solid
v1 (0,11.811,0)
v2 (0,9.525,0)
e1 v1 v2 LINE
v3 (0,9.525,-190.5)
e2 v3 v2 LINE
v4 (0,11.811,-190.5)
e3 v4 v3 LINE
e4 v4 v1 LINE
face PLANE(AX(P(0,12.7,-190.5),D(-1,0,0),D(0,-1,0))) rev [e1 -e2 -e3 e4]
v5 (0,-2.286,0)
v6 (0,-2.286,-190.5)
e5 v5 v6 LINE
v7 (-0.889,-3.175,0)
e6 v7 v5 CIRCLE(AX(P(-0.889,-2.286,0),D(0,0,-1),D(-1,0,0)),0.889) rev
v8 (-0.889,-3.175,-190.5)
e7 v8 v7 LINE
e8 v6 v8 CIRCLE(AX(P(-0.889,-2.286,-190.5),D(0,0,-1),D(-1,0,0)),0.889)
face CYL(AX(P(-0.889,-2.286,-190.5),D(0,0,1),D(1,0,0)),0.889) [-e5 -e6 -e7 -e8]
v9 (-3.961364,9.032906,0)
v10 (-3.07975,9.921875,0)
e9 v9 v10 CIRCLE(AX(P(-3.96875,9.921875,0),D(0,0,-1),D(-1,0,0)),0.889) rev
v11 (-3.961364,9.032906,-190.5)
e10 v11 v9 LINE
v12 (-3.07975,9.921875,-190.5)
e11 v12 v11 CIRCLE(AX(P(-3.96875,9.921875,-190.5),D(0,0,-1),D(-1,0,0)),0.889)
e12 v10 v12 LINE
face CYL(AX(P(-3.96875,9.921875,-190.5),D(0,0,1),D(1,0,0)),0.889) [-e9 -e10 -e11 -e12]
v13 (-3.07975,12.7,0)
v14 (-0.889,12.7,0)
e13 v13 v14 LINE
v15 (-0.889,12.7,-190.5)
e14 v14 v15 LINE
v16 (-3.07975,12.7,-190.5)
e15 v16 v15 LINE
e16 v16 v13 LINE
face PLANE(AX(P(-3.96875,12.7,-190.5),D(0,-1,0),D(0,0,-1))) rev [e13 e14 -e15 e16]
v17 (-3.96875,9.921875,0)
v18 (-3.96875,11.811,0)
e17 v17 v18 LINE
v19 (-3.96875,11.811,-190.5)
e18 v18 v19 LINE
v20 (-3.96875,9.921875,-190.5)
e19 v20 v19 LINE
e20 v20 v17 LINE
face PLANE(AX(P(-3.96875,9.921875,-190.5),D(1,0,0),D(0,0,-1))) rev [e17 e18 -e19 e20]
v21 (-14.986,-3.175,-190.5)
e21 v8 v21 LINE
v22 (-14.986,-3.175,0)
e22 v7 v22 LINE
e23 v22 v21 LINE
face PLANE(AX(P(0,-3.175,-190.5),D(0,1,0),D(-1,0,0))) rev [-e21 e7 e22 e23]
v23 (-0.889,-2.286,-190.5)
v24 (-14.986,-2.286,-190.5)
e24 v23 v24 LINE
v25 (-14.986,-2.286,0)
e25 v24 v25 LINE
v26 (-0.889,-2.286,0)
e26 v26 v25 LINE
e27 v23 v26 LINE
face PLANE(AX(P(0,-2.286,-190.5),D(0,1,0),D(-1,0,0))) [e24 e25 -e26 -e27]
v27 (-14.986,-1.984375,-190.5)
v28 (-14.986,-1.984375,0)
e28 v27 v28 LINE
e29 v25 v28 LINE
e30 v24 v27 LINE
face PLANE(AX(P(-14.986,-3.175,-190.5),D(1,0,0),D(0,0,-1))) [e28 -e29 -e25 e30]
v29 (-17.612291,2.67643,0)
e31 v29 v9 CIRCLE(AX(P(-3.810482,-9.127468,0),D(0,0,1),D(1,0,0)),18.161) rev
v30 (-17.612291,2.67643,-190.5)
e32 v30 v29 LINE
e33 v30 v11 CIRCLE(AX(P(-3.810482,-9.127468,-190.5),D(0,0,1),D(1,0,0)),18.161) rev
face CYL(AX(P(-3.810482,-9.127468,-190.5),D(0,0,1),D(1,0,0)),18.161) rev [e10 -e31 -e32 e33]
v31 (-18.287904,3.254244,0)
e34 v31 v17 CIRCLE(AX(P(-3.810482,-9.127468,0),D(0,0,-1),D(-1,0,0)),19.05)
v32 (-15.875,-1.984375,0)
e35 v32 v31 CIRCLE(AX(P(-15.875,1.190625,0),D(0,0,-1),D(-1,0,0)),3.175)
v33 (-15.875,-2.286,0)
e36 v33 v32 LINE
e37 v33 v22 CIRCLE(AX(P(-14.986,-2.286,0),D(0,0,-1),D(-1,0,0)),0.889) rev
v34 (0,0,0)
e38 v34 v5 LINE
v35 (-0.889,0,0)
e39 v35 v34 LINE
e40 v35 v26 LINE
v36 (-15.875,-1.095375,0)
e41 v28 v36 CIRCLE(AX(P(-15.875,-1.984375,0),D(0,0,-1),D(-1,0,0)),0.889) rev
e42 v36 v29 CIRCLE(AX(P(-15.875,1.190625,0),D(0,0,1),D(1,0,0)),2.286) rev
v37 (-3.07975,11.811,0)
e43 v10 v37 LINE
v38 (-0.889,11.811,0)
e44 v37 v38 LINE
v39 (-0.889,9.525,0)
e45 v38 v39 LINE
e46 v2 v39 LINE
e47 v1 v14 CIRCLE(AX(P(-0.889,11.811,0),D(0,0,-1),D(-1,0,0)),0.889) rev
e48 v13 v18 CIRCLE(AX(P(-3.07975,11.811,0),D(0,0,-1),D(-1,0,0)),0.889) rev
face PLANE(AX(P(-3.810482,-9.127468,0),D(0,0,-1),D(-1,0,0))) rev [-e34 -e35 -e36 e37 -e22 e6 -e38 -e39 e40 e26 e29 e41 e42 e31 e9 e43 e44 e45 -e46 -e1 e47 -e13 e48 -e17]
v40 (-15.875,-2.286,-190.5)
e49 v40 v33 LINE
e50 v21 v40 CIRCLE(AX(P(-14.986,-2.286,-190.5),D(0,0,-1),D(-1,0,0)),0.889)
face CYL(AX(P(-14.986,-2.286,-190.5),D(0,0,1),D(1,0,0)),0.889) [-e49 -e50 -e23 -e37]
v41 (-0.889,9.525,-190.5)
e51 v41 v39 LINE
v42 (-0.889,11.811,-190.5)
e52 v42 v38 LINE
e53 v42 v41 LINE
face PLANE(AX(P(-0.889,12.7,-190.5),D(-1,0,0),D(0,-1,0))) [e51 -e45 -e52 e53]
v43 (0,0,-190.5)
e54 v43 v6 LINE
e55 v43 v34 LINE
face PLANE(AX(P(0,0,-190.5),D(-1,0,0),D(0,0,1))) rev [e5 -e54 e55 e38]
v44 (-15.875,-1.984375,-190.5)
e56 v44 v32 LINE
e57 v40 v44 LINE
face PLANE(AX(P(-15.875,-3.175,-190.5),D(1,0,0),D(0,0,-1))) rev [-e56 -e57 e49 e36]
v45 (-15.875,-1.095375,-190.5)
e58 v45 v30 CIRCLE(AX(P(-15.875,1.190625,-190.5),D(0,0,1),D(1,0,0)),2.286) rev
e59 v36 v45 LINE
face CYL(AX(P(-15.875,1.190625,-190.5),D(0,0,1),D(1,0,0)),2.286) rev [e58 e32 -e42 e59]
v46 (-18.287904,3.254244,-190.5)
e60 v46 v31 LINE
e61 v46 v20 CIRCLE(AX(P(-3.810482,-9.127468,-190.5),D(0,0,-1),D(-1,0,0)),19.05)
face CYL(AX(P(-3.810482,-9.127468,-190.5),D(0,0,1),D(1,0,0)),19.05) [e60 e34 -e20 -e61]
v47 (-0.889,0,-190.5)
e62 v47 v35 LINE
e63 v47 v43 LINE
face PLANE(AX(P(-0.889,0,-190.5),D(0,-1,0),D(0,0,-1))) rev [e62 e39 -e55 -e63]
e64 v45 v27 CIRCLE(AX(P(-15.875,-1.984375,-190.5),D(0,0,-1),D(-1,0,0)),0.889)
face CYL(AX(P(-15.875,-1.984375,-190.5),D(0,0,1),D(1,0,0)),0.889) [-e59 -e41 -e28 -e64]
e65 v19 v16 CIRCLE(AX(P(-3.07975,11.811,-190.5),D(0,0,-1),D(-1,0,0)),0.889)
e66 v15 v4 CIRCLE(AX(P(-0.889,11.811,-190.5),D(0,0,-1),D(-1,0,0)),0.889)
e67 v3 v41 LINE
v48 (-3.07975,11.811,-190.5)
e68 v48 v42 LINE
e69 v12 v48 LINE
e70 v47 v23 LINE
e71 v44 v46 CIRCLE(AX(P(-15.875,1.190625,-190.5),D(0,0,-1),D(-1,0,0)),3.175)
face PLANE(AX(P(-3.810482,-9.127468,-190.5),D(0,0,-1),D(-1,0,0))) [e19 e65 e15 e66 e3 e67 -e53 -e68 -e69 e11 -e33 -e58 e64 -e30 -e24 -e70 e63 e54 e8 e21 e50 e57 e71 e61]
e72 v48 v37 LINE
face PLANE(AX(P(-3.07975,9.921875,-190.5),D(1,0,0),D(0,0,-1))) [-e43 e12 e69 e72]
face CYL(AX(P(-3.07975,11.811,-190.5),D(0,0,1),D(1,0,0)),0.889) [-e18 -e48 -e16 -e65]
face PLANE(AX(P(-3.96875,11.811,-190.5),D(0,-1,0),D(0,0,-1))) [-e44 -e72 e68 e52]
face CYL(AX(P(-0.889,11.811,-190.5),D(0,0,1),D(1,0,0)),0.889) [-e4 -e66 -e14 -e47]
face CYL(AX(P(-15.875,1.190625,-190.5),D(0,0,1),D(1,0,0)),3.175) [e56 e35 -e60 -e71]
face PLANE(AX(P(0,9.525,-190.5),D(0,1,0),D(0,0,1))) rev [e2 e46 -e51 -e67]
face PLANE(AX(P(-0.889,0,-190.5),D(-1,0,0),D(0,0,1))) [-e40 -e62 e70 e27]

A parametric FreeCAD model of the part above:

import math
import FreeCAD as App
import Part
import Sketcher

V = App.Vector
Q = App.Units.Quantity


def edges_at(feature, points):
    """Names of the edges that pass closest to the given points."""
    edges = feature.Shape.Edges
    near = lambda p: min(range(len(edges)), key=lambda i: edges[i].distToShape(Part.Vertex(*p))[0])
    return sorted({f"Edge{near(p) + 1}" for p in points})

doc = App.newDocument("Part")
params = doc.addObject("Spreadsheet::Sheet", "Params")
for row, (alias, value) in enumerate([
    ("sketch1_radius", "0.09 in"),
    ("sketch1_radius2", "0.75 in"),
    ("sketch1_radius3", "0.715 in"),
    ("sketch1_height", "0.09 in"),
    ("sketch1_width", "0.035 in"),
    ("pad1_length", "7.5 in"),
    ("fillet_radius", "0.035 in"),
], start=1):
    params.set(f"A{row}", alias)
    params.set(f"B{row}", "=" + value)
    params.setAlias(f"B{row}", alias)

body = doc.addObject("PartDesign::Body", "Body")

# Sketch on XY plane
sketch1 = body.newObject("Sketcher::SketchObject", "Sketch")
sketch1.AttachmentSupport = (doc.getObject("XY_Plane"), [""])
sketch1.MapMode = "FlatFace"
sketch1.addGeometry([
    Part.LineSegment(V(0, -3.175, 0), V(0, 0, 0)),  # 0
    Part.LineSegment(V(0, 0, 0), V(-0.889, 0, 0)),  # 1
    Part.LineSegment(V(-0.889, 0, 0), V(-0.889, -2.286, 0)),  # 2
    Part.LineSegment(V(-0.889, -2.286, 0), V(-14.986, -2.286, 0)),  # 3
    Part.LineSegment(V(-14.986, -2.286, 0), V(-14.986, -0.915432, 0)),  # 4
    Part.ArcOfCircle(Part.Circle(V(-15.875, 1.190625, 0), V(0, 0, 1), 2.286), math.radians(139.461521), math.radians(292.88538)),  # 5
    Part.ArcOfCircle(Part.Circle(V(-3.810482, -9.127468, 0), V(0, 0, 1), 18.161), math.radians(87.694005), math.radians(139.461521)),  # 6
    Part.LineSegment(V(-3.07975, 9.018826, 0), V(-3.07975, 11.811, 0)),  # 7
    Part.LineSegment(V(-3.07975, 11.811, 0), V(-0.889, 11.811, 0)),  # 8
    Part.LineSegment(V(-0.889, 11.811, 0), V(-0.889, 9.525, 0)),  # 9
    Part.LineSegment(V(-0.889, 9.525, 0), V(0, 9.525, 0)),  # 10
    Part.LineSegment(V(0, 9.525, 0), V(0, 12.7, 0)),  # 11
    Part.LineSegment(V(0, 12.7, 0), V(-3.96875, 12.7, 0)),  # 12
    Part.LineSegment(V(-3.96875, 12.7, 0), V(-3.96875, 9.921875, 0)),  # 13
    Part.ArcOfCircle(Part.Circle(V(-3.810482, -9.127468, 0), V(0, 0, 1), 19.05), math.radians(90.47602), math.radians(139.461521)),  # 14
    Part.ArcOfCircle(Part.Circle(V(-15.875, 1.190625, 0), V(0, 0, 1), 3.175), math.radians(139.461521), math.radians(270)),  # 15
    Part.LineSegment(V(-15.875, -1.984375, 0), V(-15.875, -3.175, 0)),  # 16
    Part.LineSegment(V(-15.875, -3.175, 0), V(0, -3.175, 0)),  # 17
], False)
sketch1.addConstraint([
    Sketcher.Constraint("Coincident", 0, 2, 1, 1),
    Sketcher.Constraint("Coincident", 1, 2, 2, 1),
    Sketcher.Constraint("Coincident", 2, 2, 3, 1),
    Sketcher.Constraint("Coincident", 3, 2, 4, 1),
    Sketcher.Constraint("Coincident", 4, 2, 5, 2),
    Sketcher.Constraint("Tangent", 5, 1, 6, 2),
    Sketcher.Constraint("Coincident", 6, 1, 7, 1),
    Sketcher.Constraint("Coincident", 7, 2, 8, 1),
    Sketcher.Constraint("Coincident", 8, 2, 9, 1),
    Sketcher.Constraint("Coincident", 9, 2, 10, 1),
    Sketcher.Constraint("Coincident", 10, 2, 11, 1),
    Sketcher.Constraint("Coincident", 11, 2, 12, 1),
    Sketcher.Constraint("Coincident", 12, 2, 13, 1),
    Sketcher.Constraint("Coincident", 13, 2, 14, 1),
    Sketcher.Constraint("Tangent", 14, 2, 15, 1),
    Sketcher.Constraint("Coincident", 15, 2, 16, 1),
    Sketcher.Constraint("Coincident", 16, 2, 17, 1),
    Sketcher.Constraint("Coincident", 17, 2, 0, 1),
    Sketcher.Constraint("Vertical", 0),
    Sketcher.Constraint("Horizontal", 1),
    Sketcher.Constraint("Vertical", 2),
    Sketcher.Constraint("Horizontal", 3),
    Sketcher.Constraint("Vertical", 4),
    Sketcher.Constraint("Vertical", 7),
    Sketcher.Constraint("Horizontal", 8),
    Sketcher.Constraint("Vertical", 9),
    Sketcher.Constraint("Horizontal", 10),
    Sketcher.Constraint("Vertical", 11),
    Sketcher.Constraint("Horizontal", 12),
    Sketcher.Constraint("Vertical", 13),
    Sketcher.Constraint("Vertical", 16),
    Sketcher.Constraint("Horizontal", 17),
    Sketcher.Constraint("Coincident", 0, 2, -1, 1),
    Sketcher.Constraint("Coincident", 14, 3, 6, 3),
    Sketcher.Constraint("Coincident", 15, 3, 5, 3),
    Sketcher.Constraint("PointOnObject", 10, 2, -2),
    Sketcher.Constraint("Vertical", 2, 2, 8, 2),
    Sketcher.Constraint("Vertical", 5, 3, 15, 2),
    Sketcher.Constraint("Equal", 2, 9),
    Sketcher.Constraint("Equal", 0, 11),
    Sketcher.Constraint("Radius", 5, Q("0.09 in")),
    Sketcher.Constraint("Radius", 14, Q("0.75 in")),
    Sketcher.Constraint("Radius", 6, Q("0.715 in")),
    Sketcher.Constraint("DistanceY", 2, 2, 2, 1, Q("0.09 in")),
    Sketcher.Constraint("DistanceY", -1, 1, 11, 2, Q("0.5 in")),
    Sketcher.Constraint("DistanceX", 1, 2, 1, 1, Q("0.035 in")),
    Sketcher.Constraint("DistanceX", 3, 2, 3, 1, Q("0.555 in")),
    Sketcher.Constraint("DistanceX", 12, 2, 12, 1, Q("0.15625 in")),
    Sketcher.Constraint("DistanceX", 17, 1, 17, 2, Q("0.625 in")),
    Sketcher.Constraint("DistanceY", 0, 1, 0, 2, Q("0.125 in")),
    Sketcher.Constraint("DistanceY", 13, 2, 13, 1, Q("0.109375 in")),
    Sketcher.Constraint("DistanceY", 16, 2, 16, 1, Q("0.046875 in")),
    Sketcher.Constraint("DistanceX", 12, 2, 7, 2, Q("0.035 in")),
])
sketch1.setExpression("Constraints[40]", "Params.sketch1_radius")
sketch1.setExpression("Constraints[41]", "Params.sketch1_radius2")
sketch1.setExpression("Constraints[42]", "Params.sketch1_radius3")
sketch1.setExpression("Constraints[43]", "Params.sketch1_height")
sketch1.setExpression("Constraints[45]", "Params.sketch1_width")
pad1 = body.newObject("PartDesign::Pad", "Pad")
pad1.Profile = sketch1
pad1.setExpression("Length", "Params.pad1_length")
pad1.Reversed = True
doc.recompute()

fillet = body.newObject("PartDesign::Fillet", "Fillet")
fillet.Base = (pad1, edges_at(pad1, [
    (-3.08, 9.019, -95.25),
    (-14.986, -0.915, -95.25),
    (0, -3.175, -95.25),
    (-15.875, -3.175, -95.25),
    (-3.969, 12.7, -95.25),
    (0, 12.7, -95.25),
]))
fillet.setExpression("Radius", "Params.fillet_radius")

doc.recompute()
